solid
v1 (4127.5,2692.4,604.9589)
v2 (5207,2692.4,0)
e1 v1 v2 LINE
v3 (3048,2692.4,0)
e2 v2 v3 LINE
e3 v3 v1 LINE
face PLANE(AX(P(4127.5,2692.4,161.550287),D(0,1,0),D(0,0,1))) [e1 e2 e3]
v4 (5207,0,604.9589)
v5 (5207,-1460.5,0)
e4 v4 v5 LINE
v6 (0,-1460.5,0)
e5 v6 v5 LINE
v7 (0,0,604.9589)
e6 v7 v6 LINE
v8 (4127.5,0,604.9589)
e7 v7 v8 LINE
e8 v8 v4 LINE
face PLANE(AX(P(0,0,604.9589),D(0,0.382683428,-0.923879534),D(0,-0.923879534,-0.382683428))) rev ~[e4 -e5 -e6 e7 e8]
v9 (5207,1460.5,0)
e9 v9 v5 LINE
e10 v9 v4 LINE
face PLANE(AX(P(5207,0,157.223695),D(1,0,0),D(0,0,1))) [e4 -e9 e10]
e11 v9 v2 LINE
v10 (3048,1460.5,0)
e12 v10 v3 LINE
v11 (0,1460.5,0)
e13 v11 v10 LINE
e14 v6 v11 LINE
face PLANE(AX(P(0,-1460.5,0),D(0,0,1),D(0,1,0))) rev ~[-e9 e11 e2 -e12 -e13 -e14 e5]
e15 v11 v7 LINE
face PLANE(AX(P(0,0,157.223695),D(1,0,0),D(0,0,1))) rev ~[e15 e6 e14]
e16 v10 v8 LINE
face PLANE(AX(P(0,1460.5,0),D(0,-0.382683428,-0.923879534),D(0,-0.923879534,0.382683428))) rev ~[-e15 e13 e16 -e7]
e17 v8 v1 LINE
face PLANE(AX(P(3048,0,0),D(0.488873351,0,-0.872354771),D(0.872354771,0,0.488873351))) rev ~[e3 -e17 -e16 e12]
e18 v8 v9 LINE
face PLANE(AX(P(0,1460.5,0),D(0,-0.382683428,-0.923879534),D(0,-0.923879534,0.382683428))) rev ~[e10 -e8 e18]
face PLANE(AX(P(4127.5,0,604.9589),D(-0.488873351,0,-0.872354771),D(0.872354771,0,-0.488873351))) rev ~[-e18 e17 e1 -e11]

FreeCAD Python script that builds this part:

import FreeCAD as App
import Part
import Sketcher

V = App.Vector
Q = App.Units.Quantity


def add_polygon(sketch, points):
    """Adds a closed chain of lines whose ends are joined by coincident constraints."""
    first, n = sketch.GeometryCount, len(points)
    for a, b in zip(points, points[1:] + points[:1]):
        sketch.addGeometry(Part.LineSegment(App.Vector(*a, 0), App.Vector(*b, 0)), False)
    for i in range(n):
        sketch.addConstraint(Sketcher.Constraint("Coincident", first + i, 2, first + (i + 1) % n, 1))

doc = App.newDocument("Part")
body = doc.addObject("PartDesign::Body", "Body")

sketch1 = doc.addObject("Sketcher::SketchObject", "Sketch")
body.addObject(sketch1)
sketch1.AttachmentSupport = (doc.YZ_Plane, [""])
sketch1.MapMode = "FlatFace"
add_polygon(sketch1, [(0, 605), (-1460, 0), (1460, 0)])
sketch1.addConstraint([
    Sketcher.Constraint("Horizontal", 1),
    Sketcher.Constraint("Symmetric", 0, 2, 1, 2, -1, 1),
    Sketcher.Constraint("PointOnObject", 2, 2, -2),
    Sketcher.Constraint("DistanceX", 1, 1, 1, 2, Q("115 in")),
    Sketcher.Constraint("Angle", 0, Q("-157.5 deg")),
])
pad1 = doc.addObject("PartDesign::Pad", "Pad")
body.addObject(pad1)
pad1.Profile = sketch1
pad1.Length = Q("205 in")

sketch2 = doc.addObject("Sketcher::SketchObject", "Sketch001")
body.addObject(sketch2)
sketch2.AttachmentSupport = (doc.XZ_Plane, [""])
sketch2.MapMode = "FlatFace"
add_polygon(sketch2, [(4128, 605), (3048, 0), (5207, 0)])
sketch2.addConstraint([
    Sketcher.Constraint("Horizontal", 1),
    Sketcher.Constraint("PointOnObject", 0, 2, -1),
    Sketcher.Constraint("Equal", 0, 2),
    Sketcher.Constraint("DistanceX", -1, 1, 1, 2, Q("205 in")),
    Sketcher.Constraint("DistanceX", 1, 1, 1, 2, Q("85 in")),
    Sketcher.Constraint("Distance", 0, Q("48.7187 in")),
])
pad2 = doc.addObject("PartDesign::Pad", "Pad001")
body.addObject(pad2)
pad2.Profile = sketch2
pad2.Length = Q("106 in")
pad2.Reversed = True

doc.recompute()
